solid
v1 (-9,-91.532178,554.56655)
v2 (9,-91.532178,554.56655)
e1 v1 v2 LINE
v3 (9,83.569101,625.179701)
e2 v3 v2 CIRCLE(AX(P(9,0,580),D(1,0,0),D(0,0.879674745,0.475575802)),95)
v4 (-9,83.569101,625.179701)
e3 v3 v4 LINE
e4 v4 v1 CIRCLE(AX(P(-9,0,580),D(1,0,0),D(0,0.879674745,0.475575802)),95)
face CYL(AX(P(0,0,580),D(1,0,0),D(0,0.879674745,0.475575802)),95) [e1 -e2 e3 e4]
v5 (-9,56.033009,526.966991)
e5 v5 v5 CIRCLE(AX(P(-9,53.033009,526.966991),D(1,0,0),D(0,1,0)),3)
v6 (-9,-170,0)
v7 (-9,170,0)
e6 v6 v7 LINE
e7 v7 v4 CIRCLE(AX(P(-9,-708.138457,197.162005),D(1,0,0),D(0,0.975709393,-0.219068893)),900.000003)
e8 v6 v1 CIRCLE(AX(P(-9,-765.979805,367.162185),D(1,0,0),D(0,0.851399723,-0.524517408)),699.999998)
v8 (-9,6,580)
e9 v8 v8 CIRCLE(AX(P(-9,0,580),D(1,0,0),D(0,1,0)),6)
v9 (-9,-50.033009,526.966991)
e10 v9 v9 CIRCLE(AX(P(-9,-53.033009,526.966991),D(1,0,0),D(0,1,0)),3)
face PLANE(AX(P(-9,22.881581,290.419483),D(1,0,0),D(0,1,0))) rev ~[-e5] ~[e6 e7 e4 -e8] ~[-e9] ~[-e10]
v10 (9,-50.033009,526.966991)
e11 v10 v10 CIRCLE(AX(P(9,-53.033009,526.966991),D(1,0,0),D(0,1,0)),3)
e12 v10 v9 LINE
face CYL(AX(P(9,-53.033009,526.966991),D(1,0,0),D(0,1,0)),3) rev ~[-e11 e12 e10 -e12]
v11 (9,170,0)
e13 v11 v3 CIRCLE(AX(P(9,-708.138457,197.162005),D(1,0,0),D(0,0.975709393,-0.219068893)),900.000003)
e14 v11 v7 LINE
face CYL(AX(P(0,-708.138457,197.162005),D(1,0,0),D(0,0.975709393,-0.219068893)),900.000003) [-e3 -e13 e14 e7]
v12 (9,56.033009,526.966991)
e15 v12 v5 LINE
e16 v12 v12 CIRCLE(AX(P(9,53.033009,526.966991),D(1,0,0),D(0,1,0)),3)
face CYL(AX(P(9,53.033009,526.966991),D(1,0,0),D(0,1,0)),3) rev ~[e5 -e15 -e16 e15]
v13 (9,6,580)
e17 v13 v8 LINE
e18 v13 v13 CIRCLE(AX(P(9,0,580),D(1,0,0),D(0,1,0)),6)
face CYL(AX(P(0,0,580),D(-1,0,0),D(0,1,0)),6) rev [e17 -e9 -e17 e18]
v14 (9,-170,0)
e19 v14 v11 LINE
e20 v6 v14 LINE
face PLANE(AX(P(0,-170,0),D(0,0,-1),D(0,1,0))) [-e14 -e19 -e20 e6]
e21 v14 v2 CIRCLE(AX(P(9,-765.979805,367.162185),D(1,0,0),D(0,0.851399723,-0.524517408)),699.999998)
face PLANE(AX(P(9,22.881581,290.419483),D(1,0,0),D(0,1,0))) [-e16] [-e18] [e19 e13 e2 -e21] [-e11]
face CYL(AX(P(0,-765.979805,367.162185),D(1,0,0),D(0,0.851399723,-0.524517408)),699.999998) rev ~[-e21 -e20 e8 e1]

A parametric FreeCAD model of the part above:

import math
import FreeCAD as App
import Part
import Sketcher
from FreeCAD import Vector

doc = App.newDocument("Part")
body = doc.addObject("PartDesign::Body", "Body")

# Sketch on YZ plane
sketch1 = doc.addObject("Sketcher::SketchObject", "Sketch")
body.addObject(sketch1)
sketch1.AttachmentSupport = (doc.YZ_Plane, [""])
sketch1.MapMode = "FlatFace"
sketch1.addGeometry([
    Part.ArcOfCircle(Part.Circle(Vector(0, 580, 0), Vector(0, 0, 1), 95), math.radians(28.396847), math.radians(195.52867)),  # 0
    Part.ArcOfCircle(Part.Circle(Vector(-765.979805, 367.162185, 0), Vector(0, 0, 1), 699.999998), math.radians(-31.635761), math.radians(15.52867)),  # 1
    Part.LineSegment(Vector(-170, 0, 0), Vector(170, 0, 0)),  # 2
    Part.ArcOfCircle(Part.Circle(Vector(-708.138457, 197.162005, 0), Vector(0, 0, 1), 900.000003), math.radians(-12.654351), math.radians(28.396809)),  # 3
    Part.Circle(Vector(0, 580, 0), Vector(0, 0, 1), 6),  # 4
], False)
sketch1.addConstraint([
    Sketcher.Constraint("Coincident", 0, 2, 1, 2),
    Sketcher.Constraint("Coincident", 1, 1, 2, 1),
    Sketcher.Constraint("Coincident", 2, 2, 3, 1),
    Sketcher.Constraint("Coincident", 3, 2, 0, 1),
    Sketcher.Constraint("Horizontal", 2),
    Sketcher.Constraint("Coincident", 4, 3, 0, 3),
    Sketcher.Constraint("PointOnObject", 0, 3, -2),
    Sketcher.Constraint("PointOnObject", 2, 2, -1),
    Sketcher.Constraint("Diameter", 4, 12.0),
    Sketcher.Constraint("Radius", 0, 95.0),
    Sketcher.Constraint("Radius", 1, 699.999998),
    Sketcher.Constraint("DistanceX", 2, 1, 2, 2, 340.0),
    Sketcher.Constraint("DistanceY", -1, 1, 0, 3, 580.0),
    Sketcher.Constraint("DistanceX", -1, 1, 2, 2, 170.0),
    Sketcher.Constraint("Radius", 3, 900.000003),
    Sketcher.Constraint("DistanceX", -1, 1, 3, 2, 83.569101),
    Sketcher.Constraint("DistanceY", -1, 1, 0, 2, 554.56655),
])
pad1 = doc.addObject("PartDesign::Pad", "Pad")
body.addObject(pad1)
pad1.Profile = sketch1
pad1.Length = 18
pad1.Midplane = True

# Sketch on YZ plane
sketch2 = doc.addObject("Sketcher::SketchObject", "Sketch001")
body.addObject(sketch2)
sketch2.AttachmentSupport = (doc.YZ_Plane, [""])
sketch2.MapMode = "FlatFace"
sketch2.AttachmentOffset = App.Placement(Vector(0, 0, 9), App.Rotation())
sketch2.addGeometry([
    Part.Circle(Vector(-53, 527, 0), Vector(0, 0, 1), 3),
    Part.Circle(Vector(53, 527, 0), Vector(0, 0, 1), 3),
], False)
sketch2.addConstraint([
    Sketcher.Constraint("Equal", 0, 1),
    Sketcher.Constraint("Symmetric", 0, 3, 1, 3, -2),
    Sketcher.Constraint("Diameter", 0, 6.0),
    Sketcher.Constraint("DistanceX", 0, 3, -1, 1, 53.033009),
    Sketcher.Constraint("DistanceY", -1, 1, 0, 3, 526.966991),
])
pocket1 = doc.addObject("PartDesign::Pocket", "Pocket")
body.addObject(pocket1)
pocket1.Profile = sketch2
pocket1.Type = "ThroughAll"

doc.recompute()
